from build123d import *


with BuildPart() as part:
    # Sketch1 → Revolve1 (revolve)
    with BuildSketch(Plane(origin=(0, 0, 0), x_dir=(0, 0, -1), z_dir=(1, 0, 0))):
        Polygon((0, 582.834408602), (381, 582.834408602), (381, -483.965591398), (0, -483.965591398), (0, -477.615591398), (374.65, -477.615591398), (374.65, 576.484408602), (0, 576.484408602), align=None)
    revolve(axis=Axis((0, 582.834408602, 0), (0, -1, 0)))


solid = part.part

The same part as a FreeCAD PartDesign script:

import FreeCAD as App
import Part
import Sketcher
Q = App.Units.Quantity

doc = App.newDocument("Part")
body = doc.addObject("PartDesign::Body", "Body")

# Sketch on YZ plane
sketch1 = body.newObject("Sketcher::SketchObject", "Sketch")
sketch1.AttachmentSupport = (doc.getObject("YZ_Plane"), [""])
sketch1.MapMode = "FlatFace"
sketch1.addGeometry([
    Part.LineSegment(App.Vector(583, -381, 0), App.Vector(583, 0, 0)),  # 0
    Part.LineSegment(App.Vector(583, 0, 0), App.Vector(576, 0, 0)),  # 1
    Part.LineSegment(App.Vector(576, 0, 0), App.Vector(576, -375, 0)),  # 2
    Part.LineSegment(App.Vector(576, -375, 0), App.Vector(-478, -375, 0)),  # 3
    Part.LineSegment(App.Vector(-478, -375, 0), App.Vector(-478, 0, 0)),  # 4
    Part.LineSegment(App.Vector(-478, 0, 0), App.Vector(-484, 0, 0)),  # 5
    Part.LineSegment(App.Vector(-484, 0, 0), App.Vector(-484, -381, 0)),  # 6
    Part.LineSegment(App.Vector(-484, -381, 0), App.Vector(583, -381, 0)),  # 7
], False)
sketch1.addConstraint([
    Sketcher.Constraint("Coincident", 0, 2, 1, 1),
    Sketcher.Constraint("Coincident", 1, 2, 2, 1),
    Sketcher.Constraint("Coincident", 2, 2, 3, 1),
    Sketcher.Constraint("Coincident", 3, 2, 4, 1),
    Sketcher.Constraint("Coincident", 4, 2, 5, 1),
    Sketcher.Constraint("Coincident", 5, 2, 6, 1),
    Sketcher.Constraint("Coincident", 6, 2, 7, 1),
    Sketcher.Constraint("Coincident", 7, 2, 0, 1),
    Sketcher.Constraint("Vertical", 0),
    Sketcher.Constraint("Horizontal", 1),
    Sketcher.Constraint("Vertical", 2),
    Sketcher.Constraint("Horizontal", 3),
    Sketcher.Constraint("Vertical", 4),
    Sketcher.Constraint("Horizontal", 5),
    Sketcher.Constraint("Vertical", 6),
    Sketcher.Constraint("Horizontal", 7),
    Sketcher.Constraint("PointOnObject", 0, 2, -1),
    Sketcher.Constraint("PointOnObject", 4, 2, -1),
    Sketcher.Constraint("Equal", 1, 5),
    Sketcher.Constraint("DistanceX", 7, 1, 7, 2, Q("42 in")),
    Sketcher.Constraint("DistanceY", 0, 1, 0, 2, Q("15 in")),
    Sketcher.Constraint("DistanceX", 3, 2, 3, 1, Q("41.5 in")),
    Sketcher.Constraint("DistanceY", 2, 2, 2, 1, Q("14.75 in")),
    Sketcher.Constraint("DistanceX", -1, 1, 0, 2, 582.834409),
])
revolution = body.newObject("PartDesign::Revolution", "Revolution")
revolution.Profile = sketch1
revolution.ReferenceAxis = (sketch1, ["H_Axis"])
revolution.Angle = 360

doc.recompute()
